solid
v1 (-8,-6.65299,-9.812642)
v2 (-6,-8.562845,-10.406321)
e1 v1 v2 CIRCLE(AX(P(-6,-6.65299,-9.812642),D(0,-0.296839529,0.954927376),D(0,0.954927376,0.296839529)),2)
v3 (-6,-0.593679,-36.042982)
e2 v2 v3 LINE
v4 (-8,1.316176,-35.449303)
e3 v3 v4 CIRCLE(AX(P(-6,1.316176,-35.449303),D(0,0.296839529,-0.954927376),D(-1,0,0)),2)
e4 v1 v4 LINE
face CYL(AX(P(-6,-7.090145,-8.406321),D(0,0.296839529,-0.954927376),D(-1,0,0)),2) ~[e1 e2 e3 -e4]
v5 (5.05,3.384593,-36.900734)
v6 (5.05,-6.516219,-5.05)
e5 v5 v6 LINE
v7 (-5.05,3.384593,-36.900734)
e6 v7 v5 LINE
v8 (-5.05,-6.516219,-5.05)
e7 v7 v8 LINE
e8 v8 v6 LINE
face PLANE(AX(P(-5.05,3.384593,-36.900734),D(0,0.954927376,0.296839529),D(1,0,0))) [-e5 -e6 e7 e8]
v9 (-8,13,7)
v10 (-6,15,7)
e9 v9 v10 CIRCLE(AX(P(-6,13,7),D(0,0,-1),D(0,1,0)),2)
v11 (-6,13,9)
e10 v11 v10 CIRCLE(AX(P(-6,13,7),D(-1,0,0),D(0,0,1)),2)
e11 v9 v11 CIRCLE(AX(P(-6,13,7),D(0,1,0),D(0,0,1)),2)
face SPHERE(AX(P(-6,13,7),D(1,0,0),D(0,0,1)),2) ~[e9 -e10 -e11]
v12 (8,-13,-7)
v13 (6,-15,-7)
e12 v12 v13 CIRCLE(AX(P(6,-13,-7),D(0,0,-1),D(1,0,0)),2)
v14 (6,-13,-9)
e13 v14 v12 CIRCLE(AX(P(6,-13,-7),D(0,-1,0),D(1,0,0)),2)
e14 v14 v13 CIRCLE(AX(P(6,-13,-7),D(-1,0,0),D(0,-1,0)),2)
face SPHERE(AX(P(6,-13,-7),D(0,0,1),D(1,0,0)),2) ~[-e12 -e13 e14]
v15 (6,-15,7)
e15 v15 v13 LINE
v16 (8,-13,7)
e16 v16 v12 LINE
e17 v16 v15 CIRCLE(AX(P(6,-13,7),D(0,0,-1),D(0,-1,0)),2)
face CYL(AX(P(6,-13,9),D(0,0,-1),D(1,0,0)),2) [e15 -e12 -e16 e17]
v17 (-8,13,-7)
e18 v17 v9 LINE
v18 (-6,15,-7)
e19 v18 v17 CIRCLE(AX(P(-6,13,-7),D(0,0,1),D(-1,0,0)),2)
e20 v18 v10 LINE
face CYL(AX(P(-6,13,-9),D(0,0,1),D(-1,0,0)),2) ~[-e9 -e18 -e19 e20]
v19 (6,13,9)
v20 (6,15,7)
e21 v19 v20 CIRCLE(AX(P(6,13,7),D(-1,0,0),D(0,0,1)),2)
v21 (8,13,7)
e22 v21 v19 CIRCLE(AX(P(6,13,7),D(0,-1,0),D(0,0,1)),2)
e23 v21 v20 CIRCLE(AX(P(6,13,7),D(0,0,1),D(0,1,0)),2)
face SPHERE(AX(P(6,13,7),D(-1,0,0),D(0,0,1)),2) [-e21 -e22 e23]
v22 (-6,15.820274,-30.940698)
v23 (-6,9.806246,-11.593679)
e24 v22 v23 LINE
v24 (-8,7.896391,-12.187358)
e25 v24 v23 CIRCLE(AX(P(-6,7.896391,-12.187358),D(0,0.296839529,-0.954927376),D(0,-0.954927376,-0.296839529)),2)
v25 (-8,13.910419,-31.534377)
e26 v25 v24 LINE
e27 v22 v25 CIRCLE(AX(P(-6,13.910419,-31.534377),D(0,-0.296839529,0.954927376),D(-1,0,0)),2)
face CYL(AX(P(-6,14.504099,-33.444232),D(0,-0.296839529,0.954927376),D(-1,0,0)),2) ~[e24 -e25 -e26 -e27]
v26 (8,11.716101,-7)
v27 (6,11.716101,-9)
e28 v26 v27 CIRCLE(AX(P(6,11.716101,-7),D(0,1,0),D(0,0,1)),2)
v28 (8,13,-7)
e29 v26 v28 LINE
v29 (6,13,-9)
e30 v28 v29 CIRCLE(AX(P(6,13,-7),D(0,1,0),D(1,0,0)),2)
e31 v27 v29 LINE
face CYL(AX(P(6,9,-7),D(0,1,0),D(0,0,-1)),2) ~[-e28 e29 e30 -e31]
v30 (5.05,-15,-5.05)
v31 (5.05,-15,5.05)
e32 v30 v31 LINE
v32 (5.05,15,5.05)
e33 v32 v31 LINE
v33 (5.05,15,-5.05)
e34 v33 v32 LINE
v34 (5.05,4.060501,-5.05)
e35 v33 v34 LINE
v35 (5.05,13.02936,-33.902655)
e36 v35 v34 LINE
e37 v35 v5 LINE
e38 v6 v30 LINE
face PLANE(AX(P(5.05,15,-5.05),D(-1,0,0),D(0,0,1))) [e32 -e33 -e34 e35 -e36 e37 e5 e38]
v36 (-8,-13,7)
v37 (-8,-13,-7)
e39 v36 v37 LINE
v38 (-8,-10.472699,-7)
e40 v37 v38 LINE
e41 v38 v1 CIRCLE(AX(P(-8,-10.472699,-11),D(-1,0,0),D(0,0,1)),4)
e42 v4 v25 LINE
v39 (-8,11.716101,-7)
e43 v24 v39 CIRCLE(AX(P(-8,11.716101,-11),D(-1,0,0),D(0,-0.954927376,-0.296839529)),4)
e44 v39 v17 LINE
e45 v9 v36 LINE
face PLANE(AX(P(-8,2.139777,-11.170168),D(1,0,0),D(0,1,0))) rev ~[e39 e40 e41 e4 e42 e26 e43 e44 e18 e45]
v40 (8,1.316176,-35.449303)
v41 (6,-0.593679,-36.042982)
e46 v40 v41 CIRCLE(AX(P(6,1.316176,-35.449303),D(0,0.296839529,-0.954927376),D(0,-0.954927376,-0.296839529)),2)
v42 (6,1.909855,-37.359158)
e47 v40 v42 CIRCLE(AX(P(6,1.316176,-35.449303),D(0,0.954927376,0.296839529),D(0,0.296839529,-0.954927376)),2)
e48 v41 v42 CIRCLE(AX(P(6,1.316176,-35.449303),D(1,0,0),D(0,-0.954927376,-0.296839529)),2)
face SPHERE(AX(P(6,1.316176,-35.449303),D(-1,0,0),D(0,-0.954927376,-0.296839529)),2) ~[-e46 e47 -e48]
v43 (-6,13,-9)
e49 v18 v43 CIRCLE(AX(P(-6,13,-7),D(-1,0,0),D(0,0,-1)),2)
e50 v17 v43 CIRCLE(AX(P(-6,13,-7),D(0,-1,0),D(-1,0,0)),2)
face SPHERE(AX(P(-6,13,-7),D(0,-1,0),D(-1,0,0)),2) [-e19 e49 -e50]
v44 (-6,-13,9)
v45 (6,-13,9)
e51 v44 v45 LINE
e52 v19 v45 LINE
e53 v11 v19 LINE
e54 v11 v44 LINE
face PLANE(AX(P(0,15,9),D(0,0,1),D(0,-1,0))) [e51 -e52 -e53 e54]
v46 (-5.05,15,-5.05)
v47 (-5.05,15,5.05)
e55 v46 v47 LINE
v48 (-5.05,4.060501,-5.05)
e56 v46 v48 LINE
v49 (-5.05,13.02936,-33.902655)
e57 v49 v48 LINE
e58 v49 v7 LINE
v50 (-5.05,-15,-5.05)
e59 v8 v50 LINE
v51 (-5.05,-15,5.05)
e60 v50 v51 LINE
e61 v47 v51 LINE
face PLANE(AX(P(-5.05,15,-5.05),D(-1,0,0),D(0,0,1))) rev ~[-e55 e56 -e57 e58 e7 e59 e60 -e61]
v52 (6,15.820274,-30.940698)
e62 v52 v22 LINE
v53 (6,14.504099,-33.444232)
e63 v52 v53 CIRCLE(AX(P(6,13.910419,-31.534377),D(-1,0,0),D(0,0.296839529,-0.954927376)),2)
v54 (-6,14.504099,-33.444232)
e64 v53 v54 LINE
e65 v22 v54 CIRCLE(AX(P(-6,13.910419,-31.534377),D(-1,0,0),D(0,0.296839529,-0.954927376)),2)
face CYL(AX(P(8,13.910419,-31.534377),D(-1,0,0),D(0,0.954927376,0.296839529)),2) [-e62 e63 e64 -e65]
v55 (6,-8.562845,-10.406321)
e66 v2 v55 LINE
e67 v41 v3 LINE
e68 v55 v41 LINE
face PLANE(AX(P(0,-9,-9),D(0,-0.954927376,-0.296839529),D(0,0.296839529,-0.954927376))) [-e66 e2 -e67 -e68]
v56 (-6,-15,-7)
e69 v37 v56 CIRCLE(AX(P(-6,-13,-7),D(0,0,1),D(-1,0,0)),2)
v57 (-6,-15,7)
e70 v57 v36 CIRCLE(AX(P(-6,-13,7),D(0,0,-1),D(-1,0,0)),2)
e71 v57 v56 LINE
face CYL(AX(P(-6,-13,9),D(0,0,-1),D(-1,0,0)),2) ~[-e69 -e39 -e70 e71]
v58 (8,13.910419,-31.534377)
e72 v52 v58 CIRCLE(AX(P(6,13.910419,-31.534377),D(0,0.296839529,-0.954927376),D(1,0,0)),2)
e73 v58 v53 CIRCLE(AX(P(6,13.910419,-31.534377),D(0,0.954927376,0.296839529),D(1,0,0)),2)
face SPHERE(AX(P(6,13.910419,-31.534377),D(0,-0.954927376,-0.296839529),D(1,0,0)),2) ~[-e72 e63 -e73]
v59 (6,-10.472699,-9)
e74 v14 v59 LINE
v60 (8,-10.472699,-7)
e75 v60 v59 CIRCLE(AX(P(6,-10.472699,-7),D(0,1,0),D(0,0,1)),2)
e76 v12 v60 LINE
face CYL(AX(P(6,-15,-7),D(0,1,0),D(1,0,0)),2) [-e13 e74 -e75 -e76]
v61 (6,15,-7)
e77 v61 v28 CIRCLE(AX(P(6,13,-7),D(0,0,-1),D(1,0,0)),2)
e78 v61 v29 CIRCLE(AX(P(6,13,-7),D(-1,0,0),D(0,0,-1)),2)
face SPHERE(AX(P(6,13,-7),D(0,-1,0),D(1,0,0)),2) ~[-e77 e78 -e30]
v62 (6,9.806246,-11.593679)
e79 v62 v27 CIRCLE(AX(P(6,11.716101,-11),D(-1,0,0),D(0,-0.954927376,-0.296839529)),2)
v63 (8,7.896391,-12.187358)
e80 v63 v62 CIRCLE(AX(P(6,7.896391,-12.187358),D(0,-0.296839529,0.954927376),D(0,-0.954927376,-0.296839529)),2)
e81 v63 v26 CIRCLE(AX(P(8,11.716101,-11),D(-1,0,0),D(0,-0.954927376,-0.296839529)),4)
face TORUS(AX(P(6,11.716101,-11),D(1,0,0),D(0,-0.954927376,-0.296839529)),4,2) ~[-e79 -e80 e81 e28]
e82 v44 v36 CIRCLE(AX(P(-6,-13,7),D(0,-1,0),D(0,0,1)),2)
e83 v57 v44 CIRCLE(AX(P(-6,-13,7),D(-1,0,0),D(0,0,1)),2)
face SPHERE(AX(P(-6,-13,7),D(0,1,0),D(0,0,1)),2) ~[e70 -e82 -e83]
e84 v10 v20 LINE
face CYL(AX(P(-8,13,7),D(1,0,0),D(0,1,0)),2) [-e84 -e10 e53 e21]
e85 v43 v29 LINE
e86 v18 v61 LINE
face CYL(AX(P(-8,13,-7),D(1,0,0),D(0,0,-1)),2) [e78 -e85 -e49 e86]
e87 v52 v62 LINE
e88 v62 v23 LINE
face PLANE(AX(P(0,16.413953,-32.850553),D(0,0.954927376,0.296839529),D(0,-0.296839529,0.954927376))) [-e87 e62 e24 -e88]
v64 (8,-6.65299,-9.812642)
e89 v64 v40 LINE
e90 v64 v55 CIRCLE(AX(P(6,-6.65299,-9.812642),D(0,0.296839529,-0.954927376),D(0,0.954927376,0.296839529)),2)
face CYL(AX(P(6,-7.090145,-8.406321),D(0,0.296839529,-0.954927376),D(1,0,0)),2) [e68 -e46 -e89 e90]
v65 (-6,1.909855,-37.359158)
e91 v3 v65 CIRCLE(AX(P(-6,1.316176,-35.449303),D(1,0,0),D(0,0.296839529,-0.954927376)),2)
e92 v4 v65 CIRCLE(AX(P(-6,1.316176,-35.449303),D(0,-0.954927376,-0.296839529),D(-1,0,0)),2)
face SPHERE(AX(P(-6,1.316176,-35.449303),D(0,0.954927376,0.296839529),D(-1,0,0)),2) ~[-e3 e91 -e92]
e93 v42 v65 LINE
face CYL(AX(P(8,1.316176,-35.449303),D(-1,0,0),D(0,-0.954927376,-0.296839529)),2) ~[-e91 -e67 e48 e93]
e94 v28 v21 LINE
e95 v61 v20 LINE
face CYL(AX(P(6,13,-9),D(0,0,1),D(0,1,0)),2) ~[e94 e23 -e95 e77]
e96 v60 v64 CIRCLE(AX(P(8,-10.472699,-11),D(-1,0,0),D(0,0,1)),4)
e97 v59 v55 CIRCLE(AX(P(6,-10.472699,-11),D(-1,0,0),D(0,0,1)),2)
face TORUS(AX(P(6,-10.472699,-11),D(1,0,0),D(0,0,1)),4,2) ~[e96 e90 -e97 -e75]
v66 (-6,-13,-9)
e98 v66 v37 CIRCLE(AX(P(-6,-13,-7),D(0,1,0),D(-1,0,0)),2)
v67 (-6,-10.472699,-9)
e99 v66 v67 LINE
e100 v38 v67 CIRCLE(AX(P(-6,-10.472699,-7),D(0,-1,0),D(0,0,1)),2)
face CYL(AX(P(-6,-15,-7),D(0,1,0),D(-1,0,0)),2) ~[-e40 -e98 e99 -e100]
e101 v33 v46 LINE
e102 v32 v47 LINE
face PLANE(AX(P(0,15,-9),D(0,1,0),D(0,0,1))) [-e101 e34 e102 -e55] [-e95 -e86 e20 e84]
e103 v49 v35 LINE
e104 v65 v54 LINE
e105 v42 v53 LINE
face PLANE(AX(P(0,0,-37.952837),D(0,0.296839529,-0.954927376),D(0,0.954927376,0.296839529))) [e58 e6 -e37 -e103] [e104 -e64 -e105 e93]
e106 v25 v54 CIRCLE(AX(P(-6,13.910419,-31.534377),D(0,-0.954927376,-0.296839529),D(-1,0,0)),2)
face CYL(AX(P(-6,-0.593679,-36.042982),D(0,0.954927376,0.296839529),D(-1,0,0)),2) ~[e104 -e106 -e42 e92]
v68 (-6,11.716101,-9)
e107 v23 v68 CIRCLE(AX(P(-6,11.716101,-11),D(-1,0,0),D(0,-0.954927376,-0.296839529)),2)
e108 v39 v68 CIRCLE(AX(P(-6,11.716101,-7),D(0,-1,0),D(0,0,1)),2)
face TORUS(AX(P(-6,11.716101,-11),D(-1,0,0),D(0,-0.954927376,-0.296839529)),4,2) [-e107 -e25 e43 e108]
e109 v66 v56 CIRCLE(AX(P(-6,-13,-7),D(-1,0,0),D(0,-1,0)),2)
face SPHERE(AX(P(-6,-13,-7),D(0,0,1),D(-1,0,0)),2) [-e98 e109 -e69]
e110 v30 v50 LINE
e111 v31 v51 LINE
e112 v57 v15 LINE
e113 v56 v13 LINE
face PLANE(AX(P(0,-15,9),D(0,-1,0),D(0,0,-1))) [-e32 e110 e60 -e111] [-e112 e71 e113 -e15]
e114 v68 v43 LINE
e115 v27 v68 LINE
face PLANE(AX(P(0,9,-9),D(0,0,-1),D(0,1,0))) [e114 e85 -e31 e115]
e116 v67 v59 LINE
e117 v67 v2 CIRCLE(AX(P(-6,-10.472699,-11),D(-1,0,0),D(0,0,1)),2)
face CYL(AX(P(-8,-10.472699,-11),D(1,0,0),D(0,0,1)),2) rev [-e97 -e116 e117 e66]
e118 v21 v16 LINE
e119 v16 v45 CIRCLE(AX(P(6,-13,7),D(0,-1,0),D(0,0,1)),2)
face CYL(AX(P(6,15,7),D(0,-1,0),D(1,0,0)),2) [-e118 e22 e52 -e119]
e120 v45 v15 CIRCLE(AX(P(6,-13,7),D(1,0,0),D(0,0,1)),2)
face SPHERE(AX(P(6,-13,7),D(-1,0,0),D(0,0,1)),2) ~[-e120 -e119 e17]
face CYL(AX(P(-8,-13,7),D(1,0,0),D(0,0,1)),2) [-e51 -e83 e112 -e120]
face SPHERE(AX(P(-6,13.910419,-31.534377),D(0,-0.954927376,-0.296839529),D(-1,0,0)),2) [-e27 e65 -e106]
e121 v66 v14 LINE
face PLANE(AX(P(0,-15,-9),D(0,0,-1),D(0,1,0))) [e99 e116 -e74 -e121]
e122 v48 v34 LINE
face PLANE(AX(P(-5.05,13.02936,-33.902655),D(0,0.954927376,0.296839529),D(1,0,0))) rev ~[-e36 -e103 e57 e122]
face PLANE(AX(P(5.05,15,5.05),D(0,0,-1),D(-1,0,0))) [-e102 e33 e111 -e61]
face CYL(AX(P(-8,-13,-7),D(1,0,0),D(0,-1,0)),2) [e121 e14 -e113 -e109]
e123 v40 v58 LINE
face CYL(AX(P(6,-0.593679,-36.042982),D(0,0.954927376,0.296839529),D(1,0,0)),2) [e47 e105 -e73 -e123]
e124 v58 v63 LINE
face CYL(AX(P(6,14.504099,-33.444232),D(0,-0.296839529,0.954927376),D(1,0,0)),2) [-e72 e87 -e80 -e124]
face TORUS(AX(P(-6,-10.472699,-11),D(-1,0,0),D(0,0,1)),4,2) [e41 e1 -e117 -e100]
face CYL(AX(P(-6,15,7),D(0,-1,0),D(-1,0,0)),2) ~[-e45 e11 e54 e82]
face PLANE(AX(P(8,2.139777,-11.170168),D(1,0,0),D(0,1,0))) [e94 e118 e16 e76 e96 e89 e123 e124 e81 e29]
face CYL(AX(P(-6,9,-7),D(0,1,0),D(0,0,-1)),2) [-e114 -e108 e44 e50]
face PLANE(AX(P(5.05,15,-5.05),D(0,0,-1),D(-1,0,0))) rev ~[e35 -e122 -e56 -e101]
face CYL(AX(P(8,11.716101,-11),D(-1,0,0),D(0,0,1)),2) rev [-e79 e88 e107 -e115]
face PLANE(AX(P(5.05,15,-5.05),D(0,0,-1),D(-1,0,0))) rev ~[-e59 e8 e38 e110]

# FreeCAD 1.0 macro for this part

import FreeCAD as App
import Part
import Sketcher
from FreeCAD import Vector
Q = App.Units.Quantity


def edges_at(feature, points):
    """Names of the edges that pass closest to the given points."""
    edges = feature.Shape.Edges
    near = lambda p: min(range(len(edges)), key=lambda i: edges[i].distToShape(Part.Vertex(*p))[0])
    return sorted({f"Edge{near(p) + 1}" for p in points})

doc = App.newDocument("Part")
params = doc.addObject("Spreadsheet::Sheet", "Params")
for row, (alias, value) in enumerate([
    ("sketch1_width", "6 mm"),
    ("sketch1_width2", "30 mm"),
    ("sketch1_height", "18 mm"),
    ("pad1_length", "16 mm"),
    ("sketch2_width", "10.1 mm"),
    ("sketch3_width", "10.1 mm"),
    ("pocket2_length", "33.355091 mm"),
    ("fillet_radius", "2 mm"),
], start=1):
    params.set(f"A{row}", alias)
    params.set(f"B{row}", "=" + value)
    params.setAlias(f"B{row}", alias)

body = doc.addObject("PartDesign::Body", "Body")

# Sketch on YZ plane
sketch1 = body.newObject("Sketcher::SketchObject", "Sketch")
sketch1.AttachmentSupport = (doc.getObject("YZ_Plane"), [""])
sketch1.MapMode = "FlatFace"
sketch1.addGeometry([
    Part.LineSegment(Vector(9, -9, 0), Vector(15, -9, 0)),  # 0
    Part.LineSegment(Vector(15, -9, 0), Vector(15, 9, 0)),  # 1
    Part.LineSegment(Vector(15, 9, 0), Vector(-15, 9, 0)),  # 2
    Part.LineSegment(Vector(-15, 9, 0), Vector(-15, -9, 0)),  # 3
    Part.LineSegment(Vector(-15, -9, 0), Vector(-9, -9, 0)),  # 4
    Part.LineSegment(Vector(-9, -9, 0), Vector(0, -37.952837, 0)),  # 5
    Part.LineSegment(Vector(0, -37.952837, 0), Vector(16.413953, -32.850553, 0)),  # 6
    Part.LineSegment(Vector(16.413953, -32.850553, 0), Vector(9, -9, 0)),  # 7
], False)
sketch1.addConstraint([
    Sketcher.Constraint("Coincident", 0, 2, 1, 1),
    Sketcher.Constraint("Coincident", 1, 2, 2, 1),
    Sketcher.Constraint("Coincident", 2, 2, 3, 1),
    Sketcher.Constraint("Coincident", 3, 2, 4, 1),
    Sketcher.Constraint("Coincident", 4, 2, 5, 1),
    Sketcher.Constraint("Coincident", 5, 2, 6, 1),
    Sketcher.Constraint("Coincident", 6, 2, 7, 1),
    Sketcher.Constraint("Coincident", 7, 2, 0, 1),
    Sketcher.Constraint("Horizontal", 0),
    Sketcher.Constraint("Vertical", 1),
    Sketcher.Constraint("Horizontal", 2),
    Sketcher.Constraint("Vertical", 3),
    Sketcher.Constraint("Horizontal", 4),
    Sketcher.Constraint("Symmetric", 0, 2, 2, 2, -1, 1),
    Sketcher.Constraint("Symmetric", 4, 2, 7, 2, -2),
    Sketcher.Constraint("PointOnObject", 5, 2, -2),
    Sketcher.Constraint("Perpendicular", 5, 6),
    Sketcher.Constraint("Perpendicular", 6, 7),
    Sketcher.Constraint("DistanceX", 0, 1, 0, 2, Q("6 mm")),
    Sketcher.Constraint("DistanceX", 2, 2, 2, 1, Q("30 mm")),
    Sketcher.Constraint("DistanceY", 1, 1, 1, 2, Q("18 mm")),
    Sketcher.Constraint("Distance", 7, Q("24.976301 mm")),
])
sketch1.setExpression("Constraints[18]", "Params.sketch1_width")
sketch1.setExpression("Constraints[19]", "Params.sketch1_width2")
sketch1.setExpression("Constraints[20]", "Params.sketch1_height")
pad1 = body.newObject("PartDesign::Pad", "Pad")
pad1.Profile = sketch1
pad1.setExpression("Length", "Params.pad1_length")
pad1.Midplane = True

# Sketch on XZ plane
sketch2 = body.newObject("Sketcher::SketchObject", "Sketch001")
sketch2.AttachmentSupport = (doc.getObject("XZ_Plane"), [""])
sketch2.MapMode = "FlatFace"
sketch2.AttachmentOffset = App.Placement(Vector(0, 0, -15), App.Rotation())
sketch2.addGeometry([
    Part.LineSegment(Vector(5.05, 5.05, 0), Vector(5.05, -5.05, 0)),
    Part.LineSegment(Vector(5.05, -5.05, 0), Vector(-5.05, -5.05, 0)),
    Part.LineSegment(Vector(-5.05, -5.05, 0), Vector(-5.05, 5.05, 0)),
    Part.LineSegment(Vector(-5.05, 5.05, 0), Vector(5.05, 5.05, 0)),
], False)
sketch2.addConstraint([
    Sketcher.Constraint("Coincident", 0, 2, 1, 1),
    Sketcher.Constraint("Coincident", 1, 2, 2, 1),
    Sketcher.Constraint("Coincident", 2, 2, 3, 1),
    Sketcher.Constraint("Coincident", 3, 2, 0, 1),
    Sketcher.Constraint("Vertical", 0),
    Sketcher.Constraint("Horizontal", 1),
    Sketcher.Constraint("Vertical", 2),
    Sketcher.Constraint("Horizontal", 3),
    Sketcher.Constraint("Symmetric", 0, 2, 2, 2, -1, 1),
    Sketcher.Constraint("Equal", 3, 0),
    Sketcher.Constraint("DistanceX", 1, 2, 1, 1, Q("10.1 mm")),
])
sketch2.setExpression("Constraints[10]", "Params.sketch2_width")
pocket1 = body.newObject("PartDesign::Pocket", "Pocket")
pocket1.Profile = sketch2
pocket1.Type = "ThroughAll"
pocket1.Reversed = True

# Sketch on an angled plane
sketch3 = body.newObject("Sketcher::SketchObject", "Sketch002")
sketch3.Placement = App.Placement(Vector(0, 10.758118, -34.608672), App.Rotation(Vector(1, 0, 0), Vector(0, -0.954927376, -0.296839529), Vector(0, 0.296839529, -0.954927376), "ZXY"))
sketch3.addGeometry([
    Part.LineSegment(Vector(-5.05, 7.721556, 0), Vector(-5.05, -2.378444, 0)),
    Part.LineSegment(Vector(-5.05, -2.378444, 0), Vector(5.05, -2.378444, 0)),
    Part.LineSegment(Vector(5.05, -2.378444, 0), Vector(5.05, 7.721556, 0)),
    Part.LineSegment(Vector(5.05, 7.721556, 0), Vector(-5.05, 7.721556, 0)),
], False)
sketch3.addConstraint([
    Sketcher.Constraint("Coincident", 0, 2, 1, 1),
    Sketcher.Constraint("Coincident", 1, 2, 2, 1),
    Sketcher.Constraint("Coincident", 2, 2, 3, 1),
    Sketcher.Constraint("Coincident", 3, 2, 0, 1),
    Sketcher.Constraint("Vertical", 0),
    Sketcher.Constraint("Horizontal", 1),
    Sketcher.Constraint("Vertical", 2),
    Sketcher.Constraint("Horizontal", 3),
    Sketcher.Constraint("Equal", 3, 0),
    Sketcher.Constraint("DistanceX", 1, 1, 1, 2, Q("10.1 mm")),
    Sketcher.Constraint("DistanceX", 0, 2, -1, 1, Q("5.05 mm")),
    Sketcher.Constraint("DistanceY", 0, 2, -1, 1, Q("2.378444 mm")),
])
sketch3.setExpression("Constraints[9]", "Params.sketch3_width")
pocket2 = body.newObject("PartDesign::Pocket", "Pocket001")
pocket2.Profile = sketch3
pocket2.setExpression("Length", "Params.pocket2_length")
doc.recompute()

fillet = body.newObject("PartDesign::Fillet", "Fillet")
fillet.Base = (pocket2, edges_at(pocket2, [
    (0, 15, 9),
    (-8, 0, 9),
    (0, -15, 9),
    (8, 0, 9),
    (-8, 8.207, -35.402),
    (-8, 12.707, -20.925),
    (-8, 12, -9),
    (-8, 15, 0),
    (-8, -15, 0),
    (-8, -12, -9),
    (-8, -4.5, -23.476),
    (0, 0, -37.953),
    (8, -4.5, -23.476),
    (0, -9, -9),
    (8, 8.207, -35.402),
    (8, 12.707, -20.925),
    (8, 12, -9),
    (8, 15, 0),
    (8, -15, 0),
    (8, -12, -9),
    (0, 16.414, -32.851),
    (0, 9, -9),
    (0, 15, -9),
    (0, -15, -9),
]))
fillet.setExpression("Radius", "Params.fillet_radius")

doc.recompute()
